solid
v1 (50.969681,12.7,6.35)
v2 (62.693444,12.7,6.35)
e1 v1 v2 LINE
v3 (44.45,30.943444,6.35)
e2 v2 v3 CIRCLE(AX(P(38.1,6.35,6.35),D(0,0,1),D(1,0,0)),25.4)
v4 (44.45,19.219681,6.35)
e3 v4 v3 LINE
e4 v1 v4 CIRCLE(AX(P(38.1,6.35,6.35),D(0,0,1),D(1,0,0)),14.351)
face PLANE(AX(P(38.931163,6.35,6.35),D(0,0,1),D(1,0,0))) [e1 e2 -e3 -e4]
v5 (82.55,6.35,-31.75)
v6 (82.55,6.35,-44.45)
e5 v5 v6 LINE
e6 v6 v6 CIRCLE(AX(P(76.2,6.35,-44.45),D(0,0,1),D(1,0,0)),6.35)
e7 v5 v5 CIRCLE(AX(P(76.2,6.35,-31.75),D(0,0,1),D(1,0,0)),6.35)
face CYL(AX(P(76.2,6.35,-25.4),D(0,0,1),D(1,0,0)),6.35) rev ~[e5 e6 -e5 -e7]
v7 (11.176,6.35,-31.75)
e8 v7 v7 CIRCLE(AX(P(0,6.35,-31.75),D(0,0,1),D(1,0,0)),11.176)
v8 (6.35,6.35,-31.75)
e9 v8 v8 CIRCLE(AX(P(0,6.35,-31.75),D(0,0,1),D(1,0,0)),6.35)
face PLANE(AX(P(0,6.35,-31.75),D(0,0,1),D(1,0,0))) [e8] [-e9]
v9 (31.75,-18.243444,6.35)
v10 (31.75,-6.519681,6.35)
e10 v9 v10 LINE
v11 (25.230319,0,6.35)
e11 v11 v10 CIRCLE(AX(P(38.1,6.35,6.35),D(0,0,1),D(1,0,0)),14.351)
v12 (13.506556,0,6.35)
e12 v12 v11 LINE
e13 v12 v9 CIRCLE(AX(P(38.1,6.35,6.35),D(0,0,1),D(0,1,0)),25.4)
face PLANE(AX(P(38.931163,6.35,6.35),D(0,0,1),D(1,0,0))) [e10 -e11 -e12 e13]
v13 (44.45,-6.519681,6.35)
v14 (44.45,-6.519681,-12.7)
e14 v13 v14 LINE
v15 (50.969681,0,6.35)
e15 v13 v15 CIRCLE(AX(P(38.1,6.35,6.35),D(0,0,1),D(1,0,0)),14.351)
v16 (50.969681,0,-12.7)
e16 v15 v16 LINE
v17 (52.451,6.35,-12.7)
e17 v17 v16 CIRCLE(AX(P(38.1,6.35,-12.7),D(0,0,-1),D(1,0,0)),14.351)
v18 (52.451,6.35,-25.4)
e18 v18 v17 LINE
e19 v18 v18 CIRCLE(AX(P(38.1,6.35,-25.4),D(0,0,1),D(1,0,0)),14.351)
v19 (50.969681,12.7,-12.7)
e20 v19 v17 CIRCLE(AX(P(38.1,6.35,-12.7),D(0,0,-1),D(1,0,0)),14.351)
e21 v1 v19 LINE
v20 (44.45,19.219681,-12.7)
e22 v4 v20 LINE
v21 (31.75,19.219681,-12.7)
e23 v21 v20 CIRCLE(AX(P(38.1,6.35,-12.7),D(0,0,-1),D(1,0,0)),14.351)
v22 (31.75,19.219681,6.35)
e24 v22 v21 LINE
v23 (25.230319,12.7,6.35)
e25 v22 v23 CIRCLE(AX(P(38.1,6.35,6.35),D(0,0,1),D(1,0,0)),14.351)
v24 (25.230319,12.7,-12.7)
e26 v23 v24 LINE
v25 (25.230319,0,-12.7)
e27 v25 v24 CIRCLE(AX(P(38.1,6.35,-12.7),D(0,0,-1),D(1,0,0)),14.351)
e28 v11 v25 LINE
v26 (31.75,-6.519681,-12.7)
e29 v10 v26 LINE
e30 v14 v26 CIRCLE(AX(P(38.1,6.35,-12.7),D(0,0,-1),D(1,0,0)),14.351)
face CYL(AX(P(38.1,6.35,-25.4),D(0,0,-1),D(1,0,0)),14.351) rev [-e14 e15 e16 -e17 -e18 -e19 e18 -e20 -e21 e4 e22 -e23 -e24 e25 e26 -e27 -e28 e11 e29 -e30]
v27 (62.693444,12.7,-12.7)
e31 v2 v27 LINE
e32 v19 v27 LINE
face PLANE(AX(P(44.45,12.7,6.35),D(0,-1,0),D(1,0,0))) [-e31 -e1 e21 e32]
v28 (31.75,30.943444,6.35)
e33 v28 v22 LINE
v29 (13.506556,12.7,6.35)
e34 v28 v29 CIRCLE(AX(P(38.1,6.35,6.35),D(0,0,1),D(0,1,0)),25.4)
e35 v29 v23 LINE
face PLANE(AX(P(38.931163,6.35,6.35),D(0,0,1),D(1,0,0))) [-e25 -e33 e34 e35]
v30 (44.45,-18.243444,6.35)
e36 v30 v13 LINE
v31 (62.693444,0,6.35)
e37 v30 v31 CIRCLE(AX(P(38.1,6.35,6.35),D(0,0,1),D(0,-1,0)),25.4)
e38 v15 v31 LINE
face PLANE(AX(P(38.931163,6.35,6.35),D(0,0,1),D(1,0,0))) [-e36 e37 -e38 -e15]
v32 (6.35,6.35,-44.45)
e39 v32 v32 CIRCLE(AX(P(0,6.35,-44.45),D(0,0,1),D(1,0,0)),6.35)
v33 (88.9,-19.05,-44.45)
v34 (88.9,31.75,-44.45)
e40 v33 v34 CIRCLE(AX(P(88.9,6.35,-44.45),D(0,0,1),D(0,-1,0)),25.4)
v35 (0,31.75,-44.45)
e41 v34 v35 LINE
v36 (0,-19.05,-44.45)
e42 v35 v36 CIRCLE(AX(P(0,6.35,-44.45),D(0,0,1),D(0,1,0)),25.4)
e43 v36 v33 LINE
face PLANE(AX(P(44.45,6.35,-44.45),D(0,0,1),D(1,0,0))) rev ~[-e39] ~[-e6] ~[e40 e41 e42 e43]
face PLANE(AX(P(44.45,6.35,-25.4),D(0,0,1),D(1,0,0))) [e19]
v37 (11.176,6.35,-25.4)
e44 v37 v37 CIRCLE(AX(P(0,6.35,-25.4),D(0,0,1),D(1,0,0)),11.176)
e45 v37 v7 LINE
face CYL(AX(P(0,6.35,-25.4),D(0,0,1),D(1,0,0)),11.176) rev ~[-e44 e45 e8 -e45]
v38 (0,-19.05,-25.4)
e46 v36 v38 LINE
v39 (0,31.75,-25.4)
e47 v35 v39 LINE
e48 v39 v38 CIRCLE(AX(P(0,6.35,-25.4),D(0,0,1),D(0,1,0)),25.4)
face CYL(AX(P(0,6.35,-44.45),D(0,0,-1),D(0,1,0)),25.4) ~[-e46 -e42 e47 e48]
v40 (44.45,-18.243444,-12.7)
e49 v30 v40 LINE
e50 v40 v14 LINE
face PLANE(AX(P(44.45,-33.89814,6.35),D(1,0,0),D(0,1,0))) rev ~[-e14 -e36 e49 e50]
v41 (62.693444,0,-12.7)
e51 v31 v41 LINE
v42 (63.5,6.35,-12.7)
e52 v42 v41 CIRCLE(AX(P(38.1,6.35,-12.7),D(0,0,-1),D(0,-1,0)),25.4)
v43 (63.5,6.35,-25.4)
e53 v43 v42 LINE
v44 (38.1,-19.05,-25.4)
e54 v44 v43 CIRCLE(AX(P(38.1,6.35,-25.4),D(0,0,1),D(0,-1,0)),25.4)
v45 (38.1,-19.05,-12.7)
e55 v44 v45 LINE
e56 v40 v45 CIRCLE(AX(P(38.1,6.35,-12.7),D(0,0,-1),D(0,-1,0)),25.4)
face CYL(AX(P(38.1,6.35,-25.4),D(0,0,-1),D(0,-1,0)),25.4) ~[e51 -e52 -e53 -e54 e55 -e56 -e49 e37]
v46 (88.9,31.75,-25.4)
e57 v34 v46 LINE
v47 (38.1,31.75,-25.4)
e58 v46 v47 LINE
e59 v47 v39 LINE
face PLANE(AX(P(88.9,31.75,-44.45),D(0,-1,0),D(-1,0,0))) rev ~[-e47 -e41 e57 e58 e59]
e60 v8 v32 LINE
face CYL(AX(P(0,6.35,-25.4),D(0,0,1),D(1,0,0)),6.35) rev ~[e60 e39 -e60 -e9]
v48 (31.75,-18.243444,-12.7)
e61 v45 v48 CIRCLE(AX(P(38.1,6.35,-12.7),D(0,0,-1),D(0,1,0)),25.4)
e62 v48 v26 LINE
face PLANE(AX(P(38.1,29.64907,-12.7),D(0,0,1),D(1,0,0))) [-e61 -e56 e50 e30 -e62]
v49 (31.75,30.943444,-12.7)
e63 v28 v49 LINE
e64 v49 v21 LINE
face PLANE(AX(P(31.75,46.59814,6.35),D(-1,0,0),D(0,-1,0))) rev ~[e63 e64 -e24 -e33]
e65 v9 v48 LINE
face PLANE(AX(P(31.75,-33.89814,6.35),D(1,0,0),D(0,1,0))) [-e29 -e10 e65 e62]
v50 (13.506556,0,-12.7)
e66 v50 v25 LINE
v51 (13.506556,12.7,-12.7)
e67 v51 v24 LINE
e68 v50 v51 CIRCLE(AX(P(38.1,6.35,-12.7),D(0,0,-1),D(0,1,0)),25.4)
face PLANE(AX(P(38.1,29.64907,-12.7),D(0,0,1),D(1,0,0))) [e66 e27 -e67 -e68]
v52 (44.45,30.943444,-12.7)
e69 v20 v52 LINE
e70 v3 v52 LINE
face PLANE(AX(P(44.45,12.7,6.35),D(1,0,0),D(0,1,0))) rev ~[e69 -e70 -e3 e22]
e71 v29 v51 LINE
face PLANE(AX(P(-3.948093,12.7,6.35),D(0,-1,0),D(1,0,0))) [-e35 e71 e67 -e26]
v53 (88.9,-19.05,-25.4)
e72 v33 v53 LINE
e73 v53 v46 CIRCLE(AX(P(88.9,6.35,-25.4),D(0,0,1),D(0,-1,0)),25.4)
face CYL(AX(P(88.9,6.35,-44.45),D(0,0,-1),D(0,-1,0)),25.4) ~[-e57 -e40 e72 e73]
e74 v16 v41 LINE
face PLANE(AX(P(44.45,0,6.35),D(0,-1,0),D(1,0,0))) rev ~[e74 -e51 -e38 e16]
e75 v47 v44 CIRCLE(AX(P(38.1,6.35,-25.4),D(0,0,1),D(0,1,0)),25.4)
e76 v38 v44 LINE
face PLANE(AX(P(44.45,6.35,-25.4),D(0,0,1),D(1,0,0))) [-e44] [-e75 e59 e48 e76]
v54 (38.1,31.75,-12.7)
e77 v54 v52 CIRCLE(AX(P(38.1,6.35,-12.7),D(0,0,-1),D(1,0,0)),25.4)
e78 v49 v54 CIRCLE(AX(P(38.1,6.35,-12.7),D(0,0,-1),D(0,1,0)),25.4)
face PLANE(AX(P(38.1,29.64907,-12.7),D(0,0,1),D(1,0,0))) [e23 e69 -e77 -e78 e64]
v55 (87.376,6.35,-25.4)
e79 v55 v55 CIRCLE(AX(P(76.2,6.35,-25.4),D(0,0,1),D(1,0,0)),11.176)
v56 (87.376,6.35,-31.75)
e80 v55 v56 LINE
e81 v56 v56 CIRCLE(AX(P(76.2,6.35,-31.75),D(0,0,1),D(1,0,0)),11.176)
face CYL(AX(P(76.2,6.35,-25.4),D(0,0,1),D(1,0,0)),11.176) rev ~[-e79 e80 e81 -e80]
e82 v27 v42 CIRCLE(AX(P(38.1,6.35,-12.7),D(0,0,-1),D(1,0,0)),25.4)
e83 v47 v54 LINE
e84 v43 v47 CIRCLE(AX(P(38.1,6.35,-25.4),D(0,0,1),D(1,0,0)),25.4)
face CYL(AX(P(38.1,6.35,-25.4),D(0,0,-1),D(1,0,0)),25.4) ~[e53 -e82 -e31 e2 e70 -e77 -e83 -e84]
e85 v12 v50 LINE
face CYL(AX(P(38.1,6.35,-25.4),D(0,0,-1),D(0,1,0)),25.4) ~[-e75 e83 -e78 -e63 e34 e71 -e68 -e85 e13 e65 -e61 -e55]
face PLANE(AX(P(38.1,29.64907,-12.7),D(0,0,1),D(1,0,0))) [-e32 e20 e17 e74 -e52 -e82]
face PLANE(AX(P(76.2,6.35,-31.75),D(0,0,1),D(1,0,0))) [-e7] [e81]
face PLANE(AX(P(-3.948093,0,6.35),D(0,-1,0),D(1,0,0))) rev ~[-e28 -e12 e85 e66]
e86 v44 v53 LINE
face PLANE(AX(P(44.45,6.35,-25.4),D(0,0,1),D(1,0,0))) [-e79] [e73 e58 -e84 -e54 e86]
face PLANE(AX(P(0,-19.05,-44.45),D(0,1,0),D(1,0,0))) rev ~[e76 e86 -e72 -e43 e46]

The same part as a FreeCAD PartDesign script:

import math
import FreeCAD as App
import Part
import Sketcher

V = App.Vector
Q = App.Units.Quantity

doc = App.newDocument("Part")
body = doc.addObject("PartDesign::Body", "Body")

# Sketch on XZ plane
sketch1 = body.newObject("Sketcher::SketchObject", "Sketch")
sketch1.AttachmentSupport = (doc.getObject("XZ_Plane"), [""])
sketch1.MapMode = "FlatFace"
sketch1.addGeometry(Part.LineSegment(V(89, 25, 0), V(0, 25, 0)), False)
sketch1.addGeometry(Part.ArcOfCircle(Part.Circle(V(0, 0, 0), V(0, 0, 1), 25), math.radians(90), math.radians(270)), False)
sketch1.addGeometry(Part.LineSegment(V(0, -25, 0), V(89, -25, 0)), False)
sketch1.addGeometry(Part.ArcOfCircle(Part.Circle(V(89, 0, 0), V(0, 0, 1), 25), math.radians(-90), math.radians(90)), False)
sketch1.addConstraint(Sketcher.Constraint("Tangent", 0, 2, 1, 1))
sketch1.addConstraint(Sketcher.Constraint("Tangent", 1, 2, 2, 1))
sketch1.addConstraint(Sketcher.Constraint("Tangent", 2, 2, 3, 1))
sketch1.addConstraint(Sketcher.Constraint("Tangent", 3, 2, 0, 1))
sketch1.addConstraint(Sketcher.Constraint("Horizontal", 0))
sketch1.addConstraint(Sketcher.Constraint("Horizontal", 2))
sketch1.addConstraint(Sketcher.Constraint("Coincident", 1, 3, -1, 1))
sketch1.addConstraint(Sketcher.Constraint("Radius", 1, Q("1 in")))
sketch1.addConstraint(Sketcher.Constraint("DistanceX", 0, 2, 0, 1, Q("3.5 in")))
pad1 = body.newObject("PartDesign::Pad", "Pad")
pad1.Profile = sketch1
pad1.Length = Q("0.75 in")
body2 = doc.addObject("PartDesign::Body", "Body001")
doc.recompute()

body.Placement = App.Placement(V(0, 6.35, -44.45), App.Rotation(V(-1, 0, 0), 90))
boolean = body2.newObject("PartDesign::Boolean", "Boolean")
boolean.Type = "Fuse"
boolean.addObjects([body])

# Sketch on XY plane
sketch2 = body2.newObject("Sketcher::SketchObject", "Sketch001")
sketch2.AttachmentSupport = (doc.getObject("XY_Plane001"), [""])
sketch2.MapMode = "FlatFace"
sketch2.AttachmentOffset = App.Placement(V(0, 0, -1 * 25.4), App.Rotation())
sketch2.addGeometry(Part.Circle(V(76, 6, 0), V(0, 0, 1), 6), False)
sketch2.addGeometry(Part.Circle(V(0, 6, 0), V(0, 0, 1), 6), False)
sketch2.addConstraint(Sketcher.Constraint("Equal", 0, 1))
sketch2.addConstraint(Sketcher.Constraint("PointOnObject", 1, 3, -2))
sketch2.addConstraint(Sketcher.Constraint("Horizontal", 0, 3, 1, 3))
sketch2.addConstraint(Sketcher.Constraint("Diameter", 0, Q("0.5 in")))
sketch2.addConstraint(Sketcher.Constraint("DistanceX", -1, 1, 0, 3, Q("3 in")))
sketch2.addConstraint(Sketcher.Constraint("DistanceY", -1, 1, 0, 3, Q("0.25 in")))
pocket1 = body2.newObject("PartDesign::Pocket", "Pocket")
pocket1.Profile = sketch2
pocket1.Length = Q("1 in")

# Sketch on XY plane
sketch3 = body2.newObject("Sketcher::SketchObject", "Sketch002")
sketch3.AttachmentSupport = (doc.getObject("XY_Plane001"), [""])
sketch3.MapMode = "FlatFace"
sketch3.AttachmentOffset = App.Placement(V(0, 0, -1 * 25.4), App.Rotation())
sketch3.addGeometry(Part.ArcOfCircle(Part.Circle(V(38, 6, 0), V(0, 0, 1), 25), math.radians(-90), math.radians(0)), False)
sketch3.addGeometry(Part.ArcOfCircle(Part.Circle(V(38, 6, 0), V(0, 0, 1), 25), math.radians(0), math.radians(90)), False)
sketch3.addGeometry(Part.ArcOfCircle(Part.Circle(V(38, 6, 0), V(0, 0, 1), 25), math.radians(90), math.radians(270)), False)
sketch3.addGeometry(Part.Circle(V(38, 6, 0), V(0, 0, 1), 14), False)
sketch3.addConstraint(Sketcher.Constraint("Tangent", 0, 2, 1, 1))
sketch3.addConstraint(Sketcher.Constraint("Tangent", 1, 2, 2, 1))
sketch3.addConstraint(Sketcher.Constraint("Tangent", 2, 2, 0, 1))
sketch3.addConstraint(Sketcher.Constraint("Coincident", 3, 3, 0, 3))
sketch3.addConstraint(Sketcher.Constraint("Horizontal", 3, 3, 0, 2))
sketch3.addConstraint(Sketcher.Constraint("Vertical", 3, 3, 1, 2))
sketch3.addConstraint(Sketcher.Constraint("Vertical", 1, 2, 2, 2))
sketch3.addConstraint(Sketcher.Constraint("Radius", 0, Q("1 in")))
sketch3.addConstraint(Sketcher.Constraint("Diameter", 3, Q("1.13 in")))
sketch3.addConstraint(Sketcher.Constraint("DistanceX", -1, 1, 0, 3, Q("1.5 in")))
sketch3.addConstraint(Sketcher.Constraint("DistanceY", -1, 1, 0, 3, Q("0.25 in")))
pad2 = body2.newObject("PartDesign::Pad", "Pad001")
pad2.Profile = sketch3
pad2.Length = Q("1.25 in")

# Sketch on XY plane
sketch4 = body2.newObject("Sketcher::SketchObject", "Sketch003")
sketch4.AttachmentSupport = (doc.getObject("XY_Plane001"), [""])
sketch4.MapMode = "FlatFace"
sketch4.AttachmentOffset = App.Placement(V(0, 0, 0.25 * 25.4), App.Rotation())
sketch4.addGeometry(Part.LineSegment(V(32, 47, 0), V(32, 13, 0)), False)
sketch4.addGeometry(Part.LineSegment(V(32, 13, 0), V(-4, 13, 0)), False)
sketch4.addGeometry(Part.LineSegment(V(-4, 13, 0), V(-4, 0, 0)), False)
sketch4.addGeometry(Part.LineSegment(V(-4, 0, 0), V(32, 0, 0)), False)
sketch4.addGeometry(Part.LineSegment(V(32, 0, 0), V(32, -34, 0)), False)
sketch4.addGeometry(Part.LineSegment(V(32, -34, 0), V(44, -34, 0)), False)
sketch4.addGeometry(Part.LineSegment(V(44, -34, 0), V(44, 0, 0)), False)
sketch4.addGeometry(Part.LineSegment(V(44, 0, 0), V(80, 0, 0)), False)
sketch4.addGeometry(Part.LineSegment(V(80, 0, 0), V(80, 13, 0)), False)
sketch4.addGeometry(Part.LineSegment(V(80, 13, 0), V(44, 13, 0)), False)
sketch4.addGeometry(Part.LineSegment(V(44, 13, 0), V(44, 47, 0)), False)
sketch4.addGeometry(Part.LineSegment(V(44, 47, 0), V(32, 47, 0)), False)
sketch4.addConstraint(Sketcher.Constraint("Coincident", 0, 2, 1, 1))
sketch4.addConstraint(Sketcher.Constraint("Coincident", 1, 2, 2, 1))
sketch4.addConstraint(Sketcher.Constraint("Coincident", 2, 2, 3, 1))
sketch4.addConstraint(Sketcher.Constraint("Coincident", 3, 2, 4, 1))
sketch4.addConstraint(Sketcher.Constraint("Coincident", 4, 2, 5, 1))
sketch4.addConstraint(Sketcher.Constraint("Coincident", 5, 2, 6, 1))
sketch4.addConstraint(Sketcher.Constraint("Coincident", 6, 2, 7, 1))
sketch4.addConstraint(Sketcher.Constraint("Coincident", 7, 2, 8, 1))
sketch4.addConstraint(Sketcher.Constraint("Coincident", 8, 2, 9, 1))
sketch4.addConstraint(Sketcher.Constraint("Coincident", 9, 2, 10, 1))
sketch4.addConstraint(Sketcher.Constraint("Coincident", 10, 2, 11, 1))
sketch4.addConstraint(Sketcher.Constraint("Coincident", 11, 2, 0, 1))
sketch4.addConstraint(Sketcher.Constraint("Vertical", 0))
sketch4.addConstraint(Sketcher.Constraint("Horizontal", 1))
sketch4.addConstraint(Sketcher.Constraint("Vertical", 2))
sketch4.addConstraint(Sketcher.Constraint("Horizontal", 3))
sketch4.addConstraint(Sketcher.Constraint("Vertical", 4))
sketch4.addConstraint(Sketcher.Constraint("Horizontal", 5))
sketch4.addConstraint(Sketcher.Constraint("Vertical", 6))
sketch4.addConstraint(Sketcher.Constraint("Horizontal", 7))
sketch4.addConstraint(Sketcher.Constraint("Vertical", 8))
sketch4.addConstraint(Sketcher.Constraint("Horizontal", 9))
sketch4.addConstraint(Sketcher.Constraint("Vertical", 10))
sketch4.addConstraint(Sketcher.Constraint("Horizontal", 11))
sketch4.addConstraint(Sketcher.Constraint("PointOnObject", 2, 2, -1))
sketch4.addConstraint(Sketcher.Constraint("PointOnObject", 6, 2, -1))
sketch4.addConstraint(Sketcher.Constraint("Horizontal", 1, 2, 8, 2))
sketch4.addConstraint(Sketcher.Constraint("Vertical", 0, 2, 3, 2))
sketch4.addConstraint(Sketcher.Constraint("Vertical", 6, 2, 9, 2))
sketch4.addConstraint(Sketcher.Constraint("Equal", 3, 7))
sketch4.addConstraint(Sketcher.Constraint("Equal", 11, 2))
sketch4.addConstraint(Sketcher.Constraint("Equal", 0, 4))
sketch4.addConstraint(Sketcher.Constraint("DistanceX", 5, 1, 5, 2, Q("0.5 in")))
sketch4.addConstraint(Sketcher.Constraint("DistanceX", -1, 1, 0, 2, Q("1.25 in")))
sketch4.addConstraint(Sketcher.Constraint("DistanceY", 0, 2, 0, 1, 33.89814))
sketch4.addConstraint(Sketcher.Constraint("DistanceX", 1, 2, 1, 1, 35.698093))
pocket2 = body2.newObject("PartDesign::Pocket", "Pocket001")
pocket2.Profile = sketch4
pocket2.Length = Q("0.75 in")

# Sketch on XY plane
sketch5 = body2.newObject("Sketcher::SketchObject", "Sketch004")
sketch5.AttachmentSupport = (doc.getObject("XY_Plane001"), [""])
sketch5.MapMode = "FlatFace"
sketch5.AttachmentOffset = App.Placement(V(0, 0, -1 * 25.4), App.Rotation())
sketch5.addGeometry(Part.Circle(V(76, 6, 0), V(0, 0, 1), 11), False)
sketch5.addGeometry(Part.Circle(V(76, 6, 0), V(0, 0, 1), 6), False)
sketch5.addGeometry(Part.Circle(V(0, 6, 0), V(0, 0, 1), 11), False)
sketch5.addGeometry(Part.Circle(V(0, 6, 0), V(0, 0, 1), 6), False)
sketch5.addConstraint(Sketcher.Constraint("Coincident", 1, 3, 0, 3))
sketch5.addConstraint(Sketcher.Constraint("Coincident", 3, 3, 2, 3))
sketch5.addConstraint(Sketcher.Constraint("Equal", 0, 2))
sketch5.addConstraint(Sketcher.Constraint("Equal", 1, 3))
sketch5.addConstraint(Sketcher.Constraint("PointOnObject", 2, 3, -2))
sketch5.addConstraint(Sketcher.Constraint("Horizontal", 1, 3, 2, 3))
sketch5.addConstraint(Sketcher.Constraint("Diameter", 1, Q("0.5 in")))
sketch5.addConstraint(Sketcher.Constraint("Diameter", 0, Q("0.88 in")))
sketch5.addConstraint(Sketcher.Constraint("DistanceX", -1, 1, 0, 3, Q("3 in")))
sketch5.addConstraint(Sketcher.Constraint("DistanceY", -1, 1, 0, 3, Q("0.25 in")))
pocket3 = body2.newObject("PartDesign::Pocket", "Pocket002")
pocket3.Profile = sketch5
pocket3.Length = Q("0.25 in")

doc.recompute()
